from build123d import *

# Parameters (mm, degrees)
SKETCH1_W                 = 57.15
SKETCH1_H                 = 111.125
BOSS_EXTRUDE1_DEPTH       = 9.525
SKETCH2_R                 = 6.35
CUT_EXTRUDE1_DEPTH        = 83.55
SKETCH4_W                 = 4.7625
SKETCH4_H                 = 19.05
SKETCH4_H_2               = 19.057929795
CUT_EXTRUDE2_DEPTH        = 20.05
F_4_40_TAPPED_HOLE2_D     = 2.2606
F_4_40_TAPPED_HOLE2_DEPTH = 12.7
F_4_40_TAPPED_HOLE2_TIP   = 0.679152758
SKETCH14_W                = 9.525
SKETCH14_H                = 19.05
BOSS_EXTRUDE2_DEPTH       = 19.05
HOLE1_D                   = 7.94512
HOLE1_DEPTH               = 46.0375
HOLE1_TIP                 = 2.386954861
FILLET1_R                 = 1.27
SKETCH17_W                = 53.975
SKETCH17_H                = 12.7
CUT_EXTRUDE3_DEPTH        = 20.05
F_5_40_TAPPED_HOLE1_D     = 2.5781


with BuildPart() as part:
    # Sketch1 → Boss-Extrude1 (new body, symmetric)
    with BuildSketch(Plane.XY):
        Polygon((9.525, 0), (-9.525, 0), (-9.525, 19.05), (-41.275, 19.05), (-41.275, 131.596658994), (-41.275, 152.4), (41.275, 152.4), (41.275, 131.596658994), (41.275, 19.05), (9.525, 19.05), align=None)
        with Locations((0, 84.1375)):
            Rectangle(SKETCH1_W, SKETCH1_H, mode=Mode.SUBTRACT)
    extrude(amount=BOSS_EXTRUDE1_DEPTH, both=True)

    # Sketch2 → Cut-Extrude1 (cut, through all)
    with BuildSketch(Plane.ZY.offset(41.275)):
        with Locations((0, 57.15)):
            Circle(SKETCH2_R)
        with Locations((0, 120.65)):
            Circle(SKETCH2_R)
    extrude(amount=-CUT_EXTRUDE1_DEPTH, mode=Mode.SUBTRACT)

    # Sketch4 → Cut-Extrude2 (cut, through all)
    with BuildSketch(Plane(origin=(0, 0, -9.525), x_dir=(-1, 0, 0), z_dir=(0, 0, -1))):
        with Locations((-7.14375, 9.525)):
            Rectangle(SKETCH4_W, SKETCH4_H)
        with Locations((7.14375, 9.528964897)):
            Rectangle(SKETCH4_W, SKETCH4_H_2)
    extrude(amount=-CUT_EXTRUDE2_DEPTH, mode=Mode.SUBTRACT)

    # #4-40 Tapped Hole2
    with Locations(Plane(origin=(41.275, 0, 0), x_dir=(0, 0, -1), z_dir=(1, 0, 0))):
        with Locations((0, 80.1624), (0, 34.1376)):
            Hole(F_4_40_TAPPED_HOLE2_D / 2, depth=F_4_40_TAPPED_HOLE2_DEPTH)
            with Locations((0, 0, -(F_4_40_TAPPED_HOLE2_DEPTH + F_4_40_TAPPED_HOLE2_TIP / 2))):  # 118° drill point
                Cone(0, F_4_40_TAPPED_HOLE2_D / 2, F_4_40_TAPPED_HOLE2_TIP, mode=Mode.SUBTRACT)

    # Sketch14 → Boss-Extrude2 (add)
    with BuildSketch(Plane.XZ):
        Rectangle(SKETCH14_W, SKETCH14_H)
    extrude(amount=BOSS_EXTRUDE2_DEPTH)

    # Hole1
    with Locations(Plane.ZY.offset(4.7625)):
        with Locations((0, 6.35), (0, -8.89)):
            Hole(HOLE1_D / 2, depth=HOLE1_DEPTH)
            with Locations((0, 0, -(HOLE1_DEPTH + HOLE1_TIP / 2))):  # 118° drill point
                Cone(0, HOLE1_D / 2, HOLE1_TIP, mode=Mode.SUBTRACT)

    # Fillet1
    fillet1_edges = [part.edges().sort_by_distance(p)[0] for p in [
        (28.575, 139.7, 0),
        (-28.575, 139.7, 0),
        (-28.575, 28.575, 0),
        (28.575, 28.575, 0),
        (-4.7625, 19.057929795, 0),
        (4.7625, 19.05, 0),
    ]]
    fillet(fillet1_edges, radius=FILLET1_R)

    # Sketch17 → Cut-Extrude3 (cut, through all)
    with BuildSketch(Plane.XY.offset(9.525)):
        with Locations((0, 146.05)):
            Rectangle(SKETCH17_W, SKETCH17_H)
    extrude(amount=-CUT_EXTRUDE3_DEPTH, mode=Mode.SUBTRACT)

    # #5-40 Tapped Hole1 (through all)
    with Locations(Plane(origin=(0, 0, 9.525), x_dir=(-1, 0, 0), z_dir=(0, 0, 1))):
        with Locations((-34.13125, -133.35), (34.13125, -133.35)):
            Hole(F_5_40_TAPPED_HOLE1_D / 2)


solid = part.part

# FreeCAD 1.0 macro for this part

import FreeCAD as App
import Part
import Sketcher

V = App.Vector
Q = App.Units.Quantity


def edges_at(feature, points):
    """Names of the edges that pass closest to the given points."""
    edges = feature.Shape.Edges
    near = lambda p: min(range(len(edges)), key=lambda i: edges[i].distToShape(Part.Vertex(*p))[0])
    return sorted({f"Edge{near(p) + 1}" for p in points})

doc = App.newDocument("Part")
body = doc.addObject("PartDesign::Body", "Body")

# Sketch on XY plane
sketch1 = doc.addObject("Sketcher::SketchObject", "Sketch")
body.addObject(sketch1)
sketch1.AttachmentSupport = (doc.XY_Plane, [""])
sketch1.MapMode = "FlatFace"
sketch1.addGeometry([
    Part.LineSegment(V(-9.525, 0, 0), V(9.525, 0, 0)),  # 0
    Part.LineSegment(V(9.525, 0, 0), V(9.525, 19.05, 0)),  # 1
    Part.LineSegment(V(9.525, 19.05, 0), V(41.275, 19.05, 0)),  # 2
    Part.LineSegment(V(41.275, 19.05, 0), V(41.275, 152.4, 0)),  # 3
    Part.LineSegment(V(41.275, 152.4, 0), V(-41.275, 152.4, 0)),  # 4
    Part.LineSegment(V(-41.275, 152.4, 0), V(-41.275, 19.05, 0)),  # 5
    Part.LineSegment(V(-41.275, 19.05, 0), V(-9.525, 19.05, 0)),  # 6
    Part.LineSegment(V(-9.525, 19.05, 0), V(-9.525, 0, 0)),  # 7
    Part.LineSegment(V(-28.575, 28.575, 0), V(-28.575, 139.7, 0)),  # 8
    Part.LineSegment(V(-28.575, 139.7, 0), V(28.575, 139.7, 0)),  # 9
    Part.LineSegment(V(28.575, 139.7, 0), V(28.575, 28.575, 0)),  # 10
    Part.LineSegment(V(28.575, 28.575, 0), V(-28.575, 28.575, 0)),  # 11
], False)
sketch1.addConstraint([
    Sketcher.Constraint("Coincident", 0, 2, 1, 1),
    Sketcher.Constraint("Coincident", 1, 2, 2, 1),
    Sketcher.Constraint("Coincident", 2, 2, 3, 1),
    Sketcher.Constraint("Coincident", 3, 2, 4, 1),
    Sketcher.Constraint("Coincident", 4, 2, 5, 1),
    Sketcher.Constraint("Coincident", 5, 2, 6, 1),
    Sketcher.Constraint("Coincident", 6, 2, 7, 1),
    Sketcher.Constraint("Coincident", 7, 2, 0, 1),
    Sketcher.Constraint("Coincident", 8, 2, 9, 1),
    Sketcher.Constraint("Coincident", 9, 2, 10, 1),
    Sketcher.Constraint("Coincident", 10, 2, 11, 1),
    Sketcher.Constraint("Coincident", 11, 2, 8, 1),
    Sketcher.Constraint("Horizontal", 0),
    Sketcher.Constraint("Vertical", 1),
    Sketcher.Constraint("Horizontal", 2),
    Sketcher.Constraint("Vertical", 3),
    Sketcher.Constraint("Horizontal", 4),
    Sketcher.Constraint("Vertical", 5),
    Sketcher.Constraint("Horizontal", 6),
    Sketcher.Constraint("Vertical", 7),
    Sketcher.Constraint("Vertical", 8),
    Sketcher.Constraint("Horizontal", 9),
    Sketcher.Constraint("Vertical", 10),
    Sketcher.Constraint("Horizontal", 11),
    Sketcher.Constraint("Symmetric", 0, 2, 7, 2, -1, 1),
    Sketcher.Constraint("Symmetric", 2, 2, 5, 2, -2),
    Sketcher.Constraint("Equal", 0, 1),
    Sketcher.Constraint("DistanceY", -1, 1, 3, 2, Q("6 in")),
    Sketcher.Constraint("DistanceX", 4, 2, 1, 2, Q("2 in")),
    Sketcher.Constraint("DistanceX", 0, 1, 0, 2, Q("0.75 in")),
    Sketcher.Constraint("DistanceX", 9, 1, 9, 2, Q("2.25 in")),
    Sketcher.Constraint("DistanceY", -1, 1, 8, 2, Q("5.5 in")),
    Sketcher.Constraint("DistanceX", 4, 2, 8, 2, Q("0.5 in")),
    Sketcher.Constraint("DistanceY", 8, 1, 8, 2, Q("4.375 in")),
])
pad1 = doc.addObject("PartDesign::Pad", "Pad")
body.addObject(pad1)
pad1.Profile = sketch1
pad1.Length = Q("0.75 in")
pad1.Midplane = True

# Sketch on YZ plane
sketch2 = doc.addObject("Sketcher::SketchObject", "Sketch001")
body.addObject(sketch2)
sketch2.AttachmentSupport = (doc.YZ_Plane, [""])
sketch2.MapMode = "FlatFace"
sketch2.AttachmentOffset = App.Placement(V(0, 0, -1.625 * 25.4), App.Rotation())
sketch2.addGeometry([
    Part.Circle(V(57.15, 0, 0), V(0, 0, 1), 6.35),
    Part.Circle(V(120.65, 0, 0), V(0, 0, 1), 6.35),
], False)
sketch2.addConstraint([
    Sketcher.Constraint("Equal", 0, 1),
    Sketcher.Constraint("PointOnObject", 0, 3, -1),
    Sketcher.Constraint("PointOnObject", 1, 3, -1),
    Sketcher.Constraint("Diameter", 0, Q("0.5 in")),
    Sketcher.Constraint("DistanceX", 0, 3, 1, 3, Q("2.5 in")),
    Sketcher.Constraint("DistanceX", -1, 1, 0, 3, Q("2.25 in")),
])
pocket1 = doc.addObject("PartDesign::Pocket", "Pocket")
body.addObject(pocket1)
pocket1.Profile = sketch2
pocket1.Type = "ThroughAll"
pocket1.Reversed = True

# Sketch on XY plane
sketch3 = doc.addObject("Sketcher::SketchObject", "Sketch002")
body.addObject(sketch3)
sketch3.AttachmentSupport = (doc.XY_Plane, [""])
sketch3.MapMode = "FlatFace"
sketch3.AttachmentOffset = App.Placement(V(0, 0, -0.375 * 25.4), App.Rotation())
sketch3.addGeometry([
    Part.LineSegment(V(9.525, 19.05, 0), V(9.525, 0, 0)),  # 0
    Part.LineSegment(V(9.525, 0, 0), V(4.7625, 0, 0)),  # 1
    Part.LineSegment(V(4.7625, 0, 0), V(4.7625, 19.05, 0)),  # 2
    Part.LineSegment(V(4.7625, 19.05, 0), V(9.525, 19.05, 0)),  # 3
    Part.LineSegment(V(-4.7625, 19.05793, 0), V(-4.7625, 0, 0)),  # 4
    Part.LineSegment(V(-4.7625, 0, 0), V(-9.525, 0, 0)),  # 5
    Part.LineSegment(V(-9.525, 0, 0), V(-9.525, 19.05793, 0)),  # 6
    Part.LineSegment(V(-9.525, 19.05793, 0), V(-4.7625, 19.05793, 0)),  # 7
], False)
sketch3.addConstraint([
    Sketcher.Constraint("Coincident", 0, 2, 1, 1),
    Sketcher.Constraint("Coincident", 1, 2, 2, 1),
    Sketcher.Constraint("Coincident", 2, 2, 3, 1),
    Sketcher.Constraint("Coincident", 3, 2, 0, 1),
    Sketcher.Constraint("Coincident", 4, 2, 5, 1),
    Sketcher.Constraint("Coincident", 5, 2, 6, 1),
    Sketcher.Constraint("Coincident", 6, 2, 7, 1),
    Sketcher.Constraint("Coincident", 7, 2, 4, 1),
    Sketcher.Constraint("Vertical", 0),
    Sketcher.Constraint("Horizontal", 1),
    Sketcher.Constraint("Vertical", 2),
    Sketcher.Constraint("Horizontal", 3),
    Sketcher.Constraint("Vertical", 4),
    Sketcher.Constraint("Horizontal", 5),
    Sketcher.Constraint("Vertical", 6),
    Sketcher.Constraint("Horizontal", 7),
    Sketcher.Constraint("Symmetric", 1, 2, 4, 2, -1, 1),
    Sketcher.Constraint("Symmetric", 0, 2, 5, 2, -2),
    Sketcher.Constraint("DistanceY", 0, 2, 0, 1, Q("0.75 in")),
    Sketcher.Constraint("DistanceX", 1, 2, 1, 1, Q("0.1875 in")),
    Sketcher.Constraint("DistanceX", 5, 2, 0, 2, Q("0.75 in")),
    Sketcher.Constraint("DistanceY", 4, 2, 4, 1, 19.05793),
])
pocket2 = doc.addObject("PartDesign::Pocket", "Pocket001")
body.addObject(pocket2)
pocket2.Profile = sketch3
pocket2.Type = "ThroughAll"
pocket2.Reversed = True

# Sketch on YZ plane
sketch4 = doc.addObject("Sketcher::SketchObject", "Sketch003")
body.addObject(sketch4)
sketch4.AttachmentSupport = (doc.YZ_Plane, [""])
sketch4.MapMode = "FlatFace"
sketch4.AttachmentOffset = App.Placement(V(0, 0, 1.625 * 25.4), App.Rotation())
sketch4.addGeometry([
    Part.Circle(V(80.1624, 0, 0), V(0, 0, 1), 1.1303),
    Part.Circle(V(34.1376, 0, 0), V(0, 0, 1), 1.1303),
], False)
sketch4.addConstraint([
    Sketcher.Constraint("Equal", 0, 1),
    Sketcher.Constraint("PointOnObject", 0, 3, -1),
    Sketcher.Constraint("PointOnObject", 1, 3, -1),
    Sketcher.Constraint("Diameter", 0, Q("0.089 in")),
    Sketcher.Constraint("DistanceX", -1, 1, 0, 3, Q("3.156 in")),
    Sketcher.Constraint("DistanceX", -1, 1, 1, 3, Q("1.344 in")),
])
doc.recompute()
hole = doc.addObject("PartDesign::Hole", "Hole")
body.addObject(hole)
hole.Profile = sketch4
hole.ThreadType = "None"
hole.Diameter = Q("0.089 in")
hole.DepthType = "Dimension"
hole.Depth = Q("0.5 in")
hole.DrillPoint = "Angled"
hole.DrillPointAngle = 118

# Sketch on XZ plane
sketch5 = doc.addObject("Sketcher::SketchObject", "Sketch004")
body.addObject(sketch5)
sketch5.AttachmentSupport = (doc.XZ_Plane, [""])
sketch5.MapMode = "FlatFace"
sketch5.addGeometry([
    Part.LineSegment(V(-4.7625, 9.525, 0), V(-4.7625, -9.525, 0)),
    Part.LineSegment(V(-4.7625, -9.525, 0), V(4.7625, -9.525, 0)),
    Part.LineSegment(V(4.7625, -9.525, 0), V(4.7625, 9.525, 0)),
    Part.LineSegment(V(4.7625, 9.525, 0), V(-4.7625, 9.525, 0)),
], False)
sketch5.addConstraint([
    Sketcher.Constraint("Coincident", 0, 2, 1, 1),
    Sketcher.Constraint("Coincident", 1, 2, 2, 1),
    Sketcher.Constraint("Coincident", 2, 2, 3, 1),
    Sketcher.Constraint("Coincident", 3, 2, 0, 1),
    Sketcher.Constraint("Vertical", 0),
    Sketcher.Constraint("Horizontal", 1),
    Sketcher.Constraint("Vertical", 2),
    Sketcher.Constraint("Horizontal", 3),
    Sketcher.Constraint("Symmetric", 0, 2, 2, 2, -1, 1),
    Sketcher.Constraint("DistanceY", 0, 2, 0, 1, Q("0.75 in")),
    Sketcher.Constraint("DistanceX", 1, 1, 1, 2, Q("0.375 in")),
])
pad2 = doc.addObject("PartDesign::Pad", "Pad001")
body.addObject(pad2)
pad2.Profile = sketch5
pad2.Length = Q("0.75 in")

# Sketch on YZ plane
sketch6 = doc.addObject("Sketcher::SketchObject", "Sketch005")
body.addObject(sketch6)
sketch6.AttachmentSupport = (doc.YZ_Plane, [""])
sketch6.MapMode = "FlatFace"
sketch6.AttachmentOffset = App.Placement(V(0, 0, -0.1875 * 25.4), App.Rotation())
sketch6.addGeometry([
    Part.Circle(V(6.35, 0, 0), V(0, 0, 1), 3.97256),
    Part.Circle(V(-8.89, 0, 0), V(0, 0, 1), 3.97256),
], False)
sketch6.addConstraint([
    Sketcher.Constraint("Equal", 0, 1),
    Sketcher.Constraint("PointOnObject", 0, 3, -1),
    Sketcher.Constraint("PointOnObject", 1, 3, -1),
    Sketcher.Constraint("Diameter", 0, Q("0.3128 in")),
    Sketcher.Constraint("DistanceX", 1, 3, 0, 3, Q("0.6 in")),
    Sketcher.Constraint("DistanceX", -1, 1, 0, 3, Q("0.25 in")),
])
doc.recompute()
hole2 = doc.addObject("PartDesign::Hole", "Hole001")
body.addObject(hole2)
hole2.Profile = sketch6
hole2.ThreadType = "None"
hole2.Diameter = Q("0.3128 in")
hole2.DepthType = "Dimension"
hole2.Depth = Q("1.8125 in")
hole2.DrillPoint = "Angled"
hole2.DrillPointAngle = 118
hole2.Reversed = True
doc.recompute()

fillet = doc.addObject("PartDesign::Fillet", "Fillet")
body.addObject(fillet)
fillet.Base = (hole2, edges_at(hole2, [
    (28.575, 139.7, 0),
    (-28.575, 139.7, 0),
    (-28.575, 28.575, 0),
    (28.575, 28.575, 0),
    (-4.763, 19.058, 0),
    (4.763, 19.05, 0),
]))
fillet.Radius = Q("0.05 in")

# Sketch on XY plane
sketch7 = doc.addObject("Sketcher::SketchObject", "Sketch006")
body.addObject(sketch7)
sketch7.AttachmentSupport = (doc.XY_Plane, [""])
sketch7.MapMode = "FlatFace"
sketch7.AttachmentOffset = App.Placement(V(0, 0, 0.375 * 25.4), App.Rotation())
sketch7.addGeometry([
    Part.LineSegment(V(-26.9875, 152.4, 0), V(-26.9875, 139.7, 0)),
    Part.LineSegment(V(-26.9875, 139.7, 0), V(26.9875, 139.7, 0)),
    Part.LineSegment(V(26.9875, 139.7, 0), V(26.9875, 152.4, 0)),
    Part.LineSegment(V(26.9875, 152.4, 0), V(-26.9875, 152.4, 0)),
], False)
sketch7.addConstraint([
    Sketcher.Constraint("Coincident", 0, 2, 1, 1),
    Sketcher.Constraint("Coincident", 1, 2, 2, 1),
    Sketcher.Constraint("Coincident", 2, 2, 3, 1),
    Sketcher.Constraint("Coincident", 3, 2, 0, 1),
    Sketcher.Constraint("Vertical", 0),
    Sketcher.Constraint("Horizontal", 1),
    Sketcher.Constraint("Vertical", 2),
    Sketcher.Constraint("Horizontal", 3),
    Sketcher.Constraint("DistanceY", 0, 2, 0, 1, Q("0.5 in")),
    Sketcher.Constraint("DistanceY", -1, 1, 2, 2, Q("6 in")),
    Sketcher.Constraint("DistanceX", 1, 1, 1, 2, Q("2.125 in")),
    Sketcher.Constraint("DistanceX", 0, 2, -1, 1, Q("1.0625 in")),
])
pocket3 = doc.addObject("PartDesign::Pocket", "Pocket002")
body.addObject(pocket3)
pocket3.Profile = sketch7
pocket3.Type = "ThroughAll"

# Sketch on XY plane
sketch8 = doc.addObject("Sketcher::SketchObject", "Sketch007")
body.addObject(sketch8)
sketch8.AttachmentSupport = (doc.XY_Plane, [""])
sketch8.MapMode = "FlatFace"
sketch8.AttachmentOffset = App.Placement(V(0, 0, 0.375 * 25.4), App.Rotation())
sketch8.addGeometry([
    Part.Circle(V(34.13125, 133.35, 0), V(0, 0, 1), 1.28905),
    Part.Circle(V(-34.13125, 133.35, 0), V(0, 0, 1), 1.28905),
], False)
sketch8.addConstraint([
    Sketcher.Constraint("Equal", 0, 1),
    Sketcher.Constraint("Symmetric", 0, 3, 1, 3, -2),
    Sketcher.Constraint("Diameter", 0, Q("0.1015 in")),
    Sketcher.Constraint("DistanceY", -1, 1, 0, 3, Q("5.25 in")),
    Sketcher.Constraint("DistanceX", -1, 1, 0, 3, Q("1.34375 in")),
])
doc.recompute()
hole3 = doc.addObject("PartDesign::Hole", "Hole002")
body.addObject(hole3)
hole3.Profile = sketch8
hole3.ThreadType = "None"
hole3.Diameter = Q("0.1015 in")
hole3.DepthType = "ThroughAll"

doc.recompute()
